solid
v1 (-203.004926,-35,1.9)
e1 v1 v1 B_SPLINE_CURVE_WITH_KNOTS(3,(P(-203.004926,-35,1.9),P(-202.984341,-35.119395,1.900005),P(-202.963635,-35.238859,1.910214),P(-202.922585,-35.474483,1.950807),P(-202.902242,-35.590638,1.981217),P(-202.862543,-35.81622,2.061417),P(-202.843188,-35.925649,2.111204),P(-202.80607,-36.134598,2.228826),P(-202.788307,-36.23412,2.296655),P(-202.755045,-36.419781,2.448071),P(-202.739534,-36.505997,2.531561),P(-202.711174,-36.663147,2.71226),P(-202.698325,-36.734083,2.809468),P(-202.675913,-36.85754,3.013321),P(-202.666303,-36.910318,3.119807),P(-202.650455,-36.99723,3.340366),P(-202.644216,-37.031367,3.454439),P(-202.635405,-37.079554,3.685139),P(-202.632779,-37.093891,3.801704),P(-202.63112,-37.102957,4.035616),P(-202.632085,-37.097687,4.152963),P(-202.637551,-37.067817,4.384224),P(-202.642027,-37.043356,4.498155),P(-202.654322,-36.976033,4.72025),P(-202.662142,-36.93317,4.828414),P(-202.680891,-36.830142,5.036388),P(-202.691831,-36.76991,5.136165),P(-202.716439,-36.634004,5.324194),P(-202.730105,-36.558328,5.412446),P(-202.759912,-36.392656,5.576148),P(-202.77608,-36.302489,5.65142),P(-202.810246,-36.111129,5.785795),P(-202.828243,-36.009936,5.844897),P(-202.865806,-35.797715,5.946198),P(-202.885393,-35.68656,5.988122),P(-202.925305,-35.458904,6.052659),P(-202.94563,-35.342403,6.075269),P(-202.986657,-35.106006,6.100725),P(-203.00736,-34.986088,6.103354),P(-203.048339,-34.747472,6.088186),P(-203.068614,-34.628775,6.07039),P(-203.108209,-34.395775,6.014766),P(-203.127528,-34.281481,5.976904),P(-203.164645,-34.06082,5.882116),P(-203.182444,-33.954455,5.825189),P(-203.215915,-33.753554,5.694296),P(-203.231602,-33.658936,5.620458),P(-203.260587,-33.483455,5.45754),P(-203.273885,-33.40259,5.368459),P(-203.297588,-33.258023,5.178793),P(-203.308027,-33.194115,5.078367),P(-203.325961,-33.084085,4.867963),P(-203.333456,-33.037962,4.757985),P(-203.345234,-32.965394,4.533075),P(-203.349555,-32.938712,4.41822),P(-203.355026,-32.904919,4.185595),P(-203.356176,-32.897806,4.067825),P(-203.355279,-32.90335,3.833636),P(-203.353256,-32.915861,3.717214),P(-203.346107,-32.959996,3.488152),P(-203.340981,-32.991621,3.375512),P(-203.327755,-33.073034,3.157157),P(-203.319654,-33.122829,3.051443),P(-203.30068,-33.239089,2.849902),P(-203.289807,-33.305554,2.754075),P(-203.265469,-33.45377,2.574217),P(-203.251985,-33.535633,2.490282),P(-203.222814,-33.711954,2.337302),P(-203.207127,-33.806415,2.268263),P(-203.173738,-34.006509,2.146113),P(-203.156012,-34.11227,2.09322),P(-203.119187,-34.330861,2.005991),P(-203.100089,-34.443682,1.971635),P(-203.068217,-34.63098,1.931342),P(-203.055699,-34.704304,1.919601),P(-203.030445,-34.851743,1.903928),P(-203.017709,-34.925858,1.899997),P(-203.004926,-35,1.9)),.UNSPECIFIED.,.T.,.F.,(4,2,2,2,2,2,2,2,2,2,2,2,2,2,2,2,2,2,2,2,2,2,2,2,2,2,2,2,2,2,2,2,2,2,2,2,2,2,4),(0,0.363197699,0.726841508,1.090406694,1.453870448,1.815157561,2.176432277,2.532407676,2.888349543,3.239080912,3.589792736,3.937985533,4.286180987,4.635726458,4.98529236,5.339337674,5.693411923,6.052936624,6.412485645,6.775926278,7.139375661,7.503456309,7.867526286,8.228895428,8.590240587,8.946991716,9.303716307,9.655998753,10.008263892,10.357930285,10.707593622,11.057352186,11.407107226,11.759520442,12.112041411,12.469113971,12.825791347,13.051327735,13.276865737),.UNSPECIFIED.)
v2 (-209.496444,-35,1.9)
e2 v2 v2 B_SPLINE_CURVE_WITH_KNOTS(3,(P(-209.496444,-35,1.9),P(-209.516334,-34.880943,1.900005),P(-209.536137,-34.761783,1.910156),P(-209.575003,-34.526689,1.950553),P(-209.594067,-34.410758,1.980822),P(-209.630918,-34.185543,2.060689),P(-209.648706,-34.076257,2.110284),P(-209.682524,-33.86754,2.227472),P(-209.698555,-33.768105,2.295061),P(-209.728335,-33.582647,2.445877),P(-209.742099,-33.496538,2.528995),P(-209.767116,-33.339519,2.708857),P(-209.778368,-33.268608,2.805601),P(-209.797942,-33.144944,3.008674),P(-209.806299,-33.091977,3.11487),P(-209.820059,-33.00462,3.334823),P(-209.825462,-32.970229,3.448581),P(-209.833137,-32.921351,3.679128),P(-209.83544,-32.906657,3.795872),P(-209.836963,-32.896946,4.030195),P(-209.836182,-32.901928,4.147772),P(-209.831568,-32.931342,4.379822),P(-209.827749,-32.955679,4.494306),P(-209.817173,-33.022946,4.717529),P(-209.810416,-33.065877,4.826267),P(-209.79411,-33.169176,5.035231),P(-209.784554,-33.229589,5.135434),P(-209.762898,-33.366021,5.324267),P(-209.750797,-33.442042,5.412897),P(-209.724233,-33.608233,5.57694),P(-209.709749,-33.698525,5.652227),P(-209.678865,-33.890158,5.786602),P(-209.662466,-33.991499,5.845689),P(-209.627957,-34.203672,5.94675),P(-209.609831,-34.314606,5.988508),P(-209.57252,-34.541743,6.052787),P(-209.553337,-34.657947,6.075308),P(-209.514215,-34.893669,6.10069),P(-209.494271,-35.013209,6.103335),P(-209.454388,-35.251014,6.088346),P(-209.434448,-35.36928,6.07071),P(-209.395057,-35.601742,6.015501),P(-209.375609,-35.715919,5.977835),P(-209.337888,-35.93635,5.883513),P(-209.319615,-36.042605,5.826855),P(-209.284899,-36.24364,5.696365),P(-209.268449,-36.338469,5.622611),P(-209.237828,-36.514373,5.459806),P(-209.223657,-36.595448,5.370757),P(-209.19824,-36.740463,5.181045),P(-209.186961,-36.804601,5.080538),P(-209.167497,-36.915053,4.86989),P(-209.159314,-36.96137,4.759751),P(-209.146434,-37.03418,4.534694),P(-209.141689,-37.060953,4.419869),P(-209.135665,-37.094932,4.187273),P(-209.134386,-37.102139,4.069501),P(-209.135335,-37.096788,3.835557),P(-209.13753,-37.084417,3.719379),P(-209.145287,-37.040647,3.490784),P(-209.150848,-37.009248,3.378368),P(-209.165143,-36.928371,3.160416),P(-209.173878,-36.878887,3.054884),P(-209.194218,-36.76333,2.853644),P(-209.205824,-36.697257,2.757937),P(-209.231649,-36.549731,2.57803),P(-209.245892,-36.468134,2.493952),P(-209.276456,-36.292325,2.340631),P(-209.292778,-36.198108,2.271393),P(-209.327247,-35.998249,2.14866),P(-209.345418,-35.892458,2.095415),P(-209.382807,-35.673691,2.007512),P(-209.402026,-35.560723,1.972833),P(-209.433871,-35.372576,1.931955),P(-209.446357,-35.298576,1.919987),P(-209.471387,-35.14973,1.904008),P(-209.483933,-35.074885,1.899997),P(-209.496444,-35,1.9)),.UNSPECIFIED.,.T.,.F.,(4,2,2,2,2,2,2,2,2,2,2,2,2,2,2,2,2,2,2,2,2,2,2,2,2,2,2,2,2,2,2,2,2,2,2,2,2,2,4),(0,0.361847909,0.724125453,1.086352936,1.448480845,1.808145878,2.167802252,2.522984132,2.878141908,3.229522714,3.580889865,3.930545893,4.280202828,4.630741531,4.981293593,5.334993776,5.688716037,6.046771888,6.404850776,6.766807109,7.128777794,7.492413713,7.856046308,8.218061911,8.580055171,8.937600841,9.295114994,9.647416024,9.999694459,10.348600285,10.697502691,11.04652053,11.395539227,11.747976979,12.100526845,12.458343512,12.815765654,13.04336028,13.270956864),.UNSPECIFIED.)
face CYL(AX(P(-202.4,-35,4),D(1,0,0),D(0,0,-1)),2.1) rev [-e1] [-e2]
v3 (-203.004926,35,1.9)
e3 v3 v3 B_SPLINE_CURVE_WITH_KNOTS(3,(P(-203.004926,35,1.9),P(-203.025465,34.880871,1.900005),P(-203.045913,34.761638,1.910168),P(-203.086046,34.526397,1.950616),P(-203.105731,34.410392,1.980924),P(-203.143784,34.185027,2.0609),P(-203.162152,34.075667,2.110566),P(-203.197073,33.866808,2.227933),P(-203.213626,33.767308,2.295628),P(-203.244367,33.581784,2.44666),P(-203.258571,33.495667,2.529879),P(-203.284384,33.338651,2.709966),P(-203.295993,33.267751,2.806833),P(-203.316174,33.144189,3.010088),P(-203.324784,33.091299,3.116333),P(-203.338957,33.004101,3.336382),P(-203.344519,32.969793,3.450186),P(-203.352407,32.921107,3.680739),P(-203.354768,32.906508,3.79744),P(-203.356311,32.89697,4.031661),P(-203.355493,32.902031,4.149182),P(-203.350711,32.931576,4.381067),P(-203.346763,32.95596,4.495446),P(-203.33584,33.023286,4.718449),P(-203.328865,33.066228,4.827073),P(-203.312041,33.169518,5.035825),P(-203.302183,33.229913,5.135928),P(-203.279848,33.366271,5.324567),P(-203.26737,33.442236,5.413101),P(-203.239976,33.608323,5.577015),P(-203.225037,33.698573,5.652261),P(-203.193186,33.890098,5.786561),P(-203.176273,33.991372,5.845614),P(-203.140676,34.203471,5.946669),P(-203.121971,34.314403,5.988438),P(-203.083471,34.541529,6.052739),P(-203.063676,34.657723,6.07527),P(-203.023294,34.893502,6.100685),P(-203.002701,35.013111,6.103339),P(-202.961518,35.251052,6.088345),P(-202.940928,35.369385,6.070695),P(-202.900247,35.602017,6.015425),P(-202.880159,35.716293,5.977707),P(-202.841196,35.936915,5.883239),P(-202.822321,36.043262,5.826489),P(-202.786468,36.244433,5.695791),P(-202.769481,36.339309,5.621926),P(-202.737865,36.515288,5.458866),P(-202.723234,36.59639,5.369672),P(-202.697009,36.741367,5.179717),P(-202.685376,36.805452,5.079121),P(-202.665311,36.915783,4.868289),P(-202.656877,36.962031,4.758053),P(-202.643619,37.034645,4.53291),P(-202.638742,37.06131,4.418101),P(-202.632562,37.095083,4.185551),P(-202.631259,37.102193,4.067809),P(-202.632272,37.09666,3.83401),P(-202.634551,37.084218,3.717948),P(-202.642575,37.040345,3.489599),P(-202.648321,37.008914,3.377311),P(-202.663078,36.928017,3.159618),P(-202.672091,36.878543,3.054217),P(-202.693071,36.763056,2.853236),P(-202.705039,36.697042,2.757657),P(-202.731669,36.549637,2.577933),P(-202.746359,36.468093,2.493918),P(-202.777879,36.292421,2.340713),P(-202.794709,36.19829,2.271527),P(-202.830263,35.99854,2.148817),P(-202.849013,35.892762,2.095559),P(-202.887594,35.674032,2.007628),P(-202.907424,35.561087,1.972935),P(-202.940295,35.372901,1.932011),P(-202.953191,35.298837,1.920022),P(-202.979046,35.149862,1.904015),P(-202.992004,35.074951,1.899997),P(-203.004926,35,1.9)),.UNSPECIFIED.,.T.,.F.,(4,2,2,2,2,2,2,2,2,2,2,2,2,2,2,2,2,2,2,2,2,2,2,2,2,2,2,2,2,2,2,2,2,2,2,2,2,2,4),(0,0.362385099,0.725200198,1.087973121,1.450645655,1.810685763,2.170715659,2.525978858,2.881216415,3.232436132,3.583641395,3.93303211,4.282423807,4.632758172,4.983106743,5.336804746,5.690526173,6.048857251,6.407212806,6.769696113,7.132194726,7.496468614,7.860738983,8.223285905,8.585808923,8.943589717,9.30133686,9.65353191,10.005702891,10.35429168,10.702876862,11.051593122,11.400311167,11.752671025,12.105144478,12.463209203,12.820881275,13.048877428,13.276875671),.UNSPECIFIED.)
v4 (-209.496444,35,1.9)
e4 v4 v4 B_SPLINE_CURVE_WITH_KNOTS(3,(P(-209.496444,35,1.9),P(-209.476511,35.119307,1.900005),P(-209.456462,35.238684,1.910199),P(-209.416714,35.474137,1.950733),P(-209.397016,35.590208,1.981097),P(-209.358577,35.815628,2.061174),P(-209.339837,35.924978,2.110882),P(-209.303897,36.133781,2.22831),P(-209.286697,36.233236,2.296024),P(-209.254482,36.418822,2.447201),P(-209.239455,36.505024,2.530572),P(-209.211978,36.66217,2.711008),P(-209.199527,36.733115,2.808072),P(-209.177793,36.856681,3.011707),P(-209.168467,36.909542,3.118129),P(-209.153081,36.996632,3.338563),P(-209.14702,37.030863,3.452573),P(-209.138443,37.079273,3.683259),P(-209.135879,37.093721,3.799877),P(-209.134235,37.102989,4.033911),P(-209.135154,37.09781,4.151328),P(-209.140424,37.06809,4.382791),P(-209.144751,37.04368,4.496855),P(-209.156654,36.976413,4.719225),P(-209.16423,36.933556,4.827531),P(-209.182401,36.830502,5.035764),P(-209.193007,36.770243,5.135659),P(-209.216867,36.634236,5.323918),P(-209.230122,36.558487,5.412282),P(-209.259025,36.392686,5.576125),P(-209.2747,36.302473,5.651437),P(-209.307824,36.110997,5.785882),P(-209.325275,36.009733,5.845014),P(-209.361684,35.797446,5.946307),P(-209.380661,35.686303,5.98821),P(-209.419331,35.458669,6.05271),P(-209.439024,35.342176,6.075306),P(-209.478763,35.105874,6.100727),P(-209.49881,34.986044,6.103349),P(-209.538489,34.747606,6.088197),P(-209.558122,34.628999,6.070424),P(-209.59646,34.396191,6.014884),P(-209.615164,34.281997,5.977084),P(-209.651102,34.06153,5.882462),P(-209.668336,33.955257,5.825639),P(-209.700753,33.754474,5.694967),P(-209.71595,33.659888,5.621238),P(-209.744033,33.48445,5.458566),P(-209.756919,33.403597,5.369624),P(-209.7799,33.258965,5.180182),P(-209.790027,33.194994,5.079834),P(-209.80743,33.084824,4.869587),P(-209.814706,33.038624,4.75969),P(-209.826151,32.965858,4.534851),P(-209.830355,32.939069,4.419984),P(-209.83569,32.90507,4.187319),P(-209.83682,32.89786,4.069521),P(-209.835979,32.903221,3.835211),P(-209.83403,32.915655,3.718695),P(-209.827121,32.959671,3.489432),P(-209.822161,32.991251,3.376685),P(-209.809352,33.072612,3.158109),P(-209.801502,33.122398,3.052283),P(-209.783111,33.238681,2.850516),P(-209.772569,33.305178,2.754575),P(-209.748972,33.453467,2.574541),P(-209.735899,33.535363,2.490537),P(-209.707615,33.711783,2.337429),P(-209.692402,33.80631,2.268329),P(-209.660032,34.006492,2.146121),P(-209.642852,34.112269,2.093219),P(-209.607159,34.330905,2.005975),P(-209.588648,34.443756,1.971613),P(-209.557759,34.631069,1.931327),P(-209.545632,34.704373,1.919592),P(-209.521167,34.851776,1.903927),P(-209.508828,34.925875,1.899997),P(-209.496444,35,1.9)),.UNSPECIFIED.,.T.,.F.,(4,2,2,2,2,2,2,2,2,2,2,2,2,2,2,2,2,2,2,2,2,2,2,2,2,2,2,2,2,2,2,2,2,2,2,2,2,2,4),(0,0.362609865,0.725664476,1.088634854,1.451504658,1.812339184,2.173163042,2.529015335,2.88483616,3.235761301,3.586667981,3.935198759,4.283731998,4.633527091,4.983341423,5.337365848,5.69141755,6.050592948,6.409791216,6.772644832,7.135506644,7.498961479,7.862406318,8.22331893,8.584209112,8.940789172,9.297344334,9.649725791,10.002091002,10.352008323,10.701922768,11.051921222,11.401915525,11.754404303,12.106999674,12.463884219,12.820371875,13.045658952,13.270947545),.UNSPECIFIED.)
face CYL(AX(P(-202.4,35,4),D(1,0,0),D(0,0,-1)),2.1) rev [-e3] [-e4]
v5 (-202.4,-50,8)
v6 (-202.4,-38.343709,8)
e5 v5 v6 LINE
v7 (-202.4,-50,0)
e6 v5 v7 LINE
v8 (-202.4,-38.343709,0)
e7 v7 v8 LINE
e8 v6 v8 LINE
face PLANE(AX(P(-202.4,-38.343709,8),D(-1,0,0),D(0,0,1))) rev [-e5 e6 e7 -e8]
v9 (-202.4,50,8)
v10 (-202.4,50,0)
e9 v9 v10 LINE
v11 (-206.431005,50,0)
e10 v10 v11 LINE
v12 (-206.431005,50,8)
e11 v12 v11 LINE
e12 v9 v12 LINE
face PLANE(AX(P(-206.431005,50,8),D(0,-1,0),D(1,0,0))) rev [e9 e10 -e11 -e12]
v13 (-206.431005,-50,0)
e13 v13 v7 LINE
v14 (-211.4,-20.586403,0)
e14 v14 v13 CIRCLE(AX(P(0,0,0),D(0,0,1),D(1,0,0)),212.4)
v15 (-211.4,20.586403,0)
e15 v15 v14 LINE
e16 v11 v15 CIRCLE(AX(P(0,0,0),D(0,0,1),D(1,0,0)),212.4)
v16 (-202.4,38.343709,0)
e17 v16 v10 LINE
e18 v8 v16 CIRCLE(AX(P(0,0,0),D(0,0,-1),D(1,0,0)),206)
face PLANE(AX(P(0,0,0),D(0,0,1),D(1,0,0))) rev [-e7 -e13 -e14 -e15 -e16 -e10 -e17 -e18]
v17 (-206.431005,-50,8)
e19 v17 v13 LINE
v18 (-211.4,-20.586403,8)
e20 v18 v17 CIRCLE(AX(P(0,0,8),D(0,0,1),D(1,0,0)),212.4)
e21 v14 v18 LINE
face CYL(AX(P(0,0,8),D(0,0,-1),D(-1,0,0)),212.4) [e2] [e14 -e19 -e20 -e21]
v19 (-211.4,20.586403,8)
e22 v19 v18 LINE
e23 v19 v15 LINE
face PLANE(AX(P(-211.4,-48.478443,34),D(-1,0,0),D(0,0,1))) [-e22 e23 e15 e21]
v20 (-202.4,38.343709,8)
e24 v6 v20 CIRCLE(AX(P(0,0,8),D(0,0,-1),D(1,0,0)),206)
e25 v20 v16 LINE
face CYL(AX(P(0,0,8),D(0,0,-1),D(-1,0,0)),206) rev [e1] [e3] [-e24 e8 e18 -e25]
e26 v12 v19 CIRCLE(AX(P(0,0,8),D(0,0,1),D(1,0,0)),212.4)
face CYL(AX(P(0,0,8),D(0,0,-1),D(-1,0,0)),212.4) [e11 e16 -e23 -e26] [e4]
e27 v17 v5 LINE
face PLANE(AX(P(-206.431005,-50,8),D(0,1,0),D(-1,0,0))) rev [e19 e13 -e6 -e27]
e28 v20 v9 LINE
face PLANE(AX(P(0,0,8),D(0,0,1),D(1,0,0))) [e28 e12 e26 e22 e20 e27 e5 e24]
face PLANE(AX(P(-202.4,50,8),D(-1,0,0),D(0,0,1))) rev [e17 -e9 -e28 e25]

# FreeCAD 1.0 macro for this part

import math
import FreeCAD as App
import Part
import Sketcher
Q = App.Units.Quantity


def add_polygon(sketch, points):
    """Adds a closed chain of lines whose ends are joined by coincident constraints."""
    first, n = sketch.GeometryCount, len(points)
    for a, b in zip(points, points[1:] + points[:1]):
        sketch.addGeometry(Part.LineSegment(App.Vector(*a, 0), App.Vector(*b, 0)), False)
    for i in range(n):
        sketch.addConstraint(Sketcher.Constraint("Coincident", first + i, 2, first + (i + 1) % n, 1))

doc = App.newDocument("Part")
body = doc.addObject("PartDesign::Body", "Body")

sketch1 = body.newObject("Sketcher::SketchObject", "Sketch")
sketch1.AttachmentSupport = (doc.getObject("XY_Plane"), [""])
sketch1.MapMode = "FlatFace"
sketch1.addGeometry(Part.LineSegment(App.Vector(-202.4, -50, 0), App.Vector(-202.4, -38.3, 0)), False)
sketch1.addGeometry(Part.ArcOfCircle(Part.Circle(App.Vector(0, 0, 0), App.Vector(0, 0, 1), 206), math.radians(169), math.radians(191)), False)
sketch1.addGeometry(Part.LineSegment(App.Vector(-202.4, 38.3, 0), App.Vector(-202.4, 50, 0)), False)
sketch1.addGeometry(Part.LineSegment(App.Vector(-202.4, 50, 0), App.Vector(-206.4, 50, 0)), False)
sketch1.addGeometry(Part.ArcOfCircle(Part.Circle(App.Vector(0, 0, 0), App.Vector(0, 0, 1), 212.4), math.radians(166), math.radians(194)), False)
sketch1.addGeometry(Part.LineSegment(App.Vector(-206.4, -50, 0), App.Vector(-202.4, -50, 0)), False)
sketch1.addConstraint(Sketcher.Constraint("Coincident", 0, 2, 1, 2))
sketch1.addConstraint(Sketcher.Constraint("Coincident", 1, 1, 2, 1))
sketch1.addConstraint(Sketcher.Constraint("Coincident", 2, 2, 3, 1))
sketch1.addConstraint(Sketcher.Constraint("Coincident", 3, 2, 4, 1))
sketch1.addConstraint(Sketcher.Constraint("Coincident", 4, 2, 5, 1))
sketch1.addConstraint(Sketcher.Constraint("Coincident", 5, 2, 0, 1))
sketch1.addConstraint(Sketcher.Constraint("Vertical", 0))
sketch1.addConstraint(Sketcher.Constraint("Vertical", 2))
sketch1.addConstraint(Sketcher.Constraint("Horizontal", 3))
sketch1.addConstraint(Sketcher.Constraint("Horizontal", 5))
sketch1.addConstraint(Sketcher.Constraint("Coincident", 1, 3, -1, 1))
sketch1.addConstraint(Sketcher.Constraint("Coincident", 4, 3, -1, 1))
sketch1.addConstraint(Sketcher.Constraint("Symmetric", 2, 2, 5, 2, -1))
sketch1.addConstraint(Sketcher.Constraint("Radius", 1, Q("206 mm")))
sketch1.addConstraint(Sketcher.Constraint("Radius", 4, Q("212.4 mm")))
sketch1.addConstraint(Sketcher.Constraint("DistanceY", -1, 1, 2, 2, Q("50 mm")))
sketch1.addConstraint(Sketcher.Constraint("DistanceX", 0, 2, -1, 1, Q("202.4 mm")))
pad1 = body.newObject("PartDesign::Pad", "Pad")
pad1.Profile = sketch1
pad1.Length = 8

sketch2 = body.newObject("Sketcher::SketchObject", "Sketch001")
sketch2.AttachmentSupport = (doc.getObject("YZ_Plane"), [""])
sketch2.MapMode = "FlatFace"
sketch2.AttachmentOffset = App.Placement(App.Vector(0, 0, -202.4), App.Rotation())
sketch2.addGeometry(Part.Circle(App.Vector(35, 4, 0), App.Vector(0, 0, 1), 2.1), False)
sketch2.addConstraint(Sketcher.Constraint("Diameter", 0, Q("4.2 mm")))
sketch2.addConstraint(Sketcher.Constraint("DistanceX", -1, 1, 0, 3, Q("35 mm")))
sketch2.addConstraint(Sketcher.Constraint("DistanceY", -1, 1, 0, 3, Q("4 mm")))
doc.recompute()
hole = body.newObject("PartDesign::Hole", "Hole")
hole.Profile = sketch2
hole.ThreadType = "None"
hole.Diameter = 4.2
hole.DepthType = "ThroughAll"

sketch3 = body.newObject("Sketcher::SketchObject", "Sketch002")
sketch3.AttachmentSupport = (doc.getObject("YZ_Plane"), [""])
sketch3.MapMode = "FlatFace"
sketch3.AttachmentOffset = App.Placement(App.Vector(0, 0, -202.4), App.Rotation())
sketch3.addGeometry(Part.Circle(App.Vector(-35, 4, 0), App.Vector(0, 0, 1), 2.1), False)
sketch3.addConstraint(Sketcher.Constraint("Diameter", 0, Q("4.2 mm")))
sketch3.addConstraint(Sketcher.Constraint("DistanceX", 0, 3, -1, 1, Q("35 mm")))
sketch3.addConstraint(Sketcher.Constraint("DistanceY", -1, 1, 0, 3, Q("4 mm")))
doc.recompute()
hole2 = body.newObject("PartDesign::Hole", "Hole001")
hole2.Profile = sketch3
hole2.ThreadType = "None"
hole2.Diameter = 4.2
hole2.DepthType = "ThroughAll"

sketch4 = body.newObject("Sketcher::SketchObject", "Sketch003")
sketch4.AttachmentSupport = (doc.getObject("XY_Plane"), [""])
sketch4.MapMode = "FlatFace"
add_polygon(sketch4, [(-230, 48), (-230, -48), (-211, -48), (-211, 48)])
sketch4.addConstraint(Sketcher.Constraint("Vertical", 0))
sketch4.addConstraint(Sketcher.Constraint("Horizontal", 1))
sketch4.addConstraint(Sketcher.Constraint("Vertical", 2))
sketch4.addConstraint(Sketcher.Constraint("Horizontal", 3))
sketch4.addConstraint(Sketcher.Constraint("DistanceX", 1, 2, -1, 1, Q("211.4 mm")))
sketch4.addConstraint(Sketcher.Constraint("DistanceX", 1, 1, 1, 2, Q("18.974951 mm")))
sketch4.addConstraint(Sketcher.Constraint("DistanceY", 0, 2, 0, 1, Q("96.168502 mm")))
sketch4.addConstraint(Sketcher.Constraint("DistanceY", -1, 1, 2, 2, Q("47.69006 mm")))
pocket1 = body.newObject("PartDesign::Pocket", "Pocket")
pocket1.Profile = sketch4
pocket1.Length = 34
pocket1.Reversed = True

doc.recompute()
